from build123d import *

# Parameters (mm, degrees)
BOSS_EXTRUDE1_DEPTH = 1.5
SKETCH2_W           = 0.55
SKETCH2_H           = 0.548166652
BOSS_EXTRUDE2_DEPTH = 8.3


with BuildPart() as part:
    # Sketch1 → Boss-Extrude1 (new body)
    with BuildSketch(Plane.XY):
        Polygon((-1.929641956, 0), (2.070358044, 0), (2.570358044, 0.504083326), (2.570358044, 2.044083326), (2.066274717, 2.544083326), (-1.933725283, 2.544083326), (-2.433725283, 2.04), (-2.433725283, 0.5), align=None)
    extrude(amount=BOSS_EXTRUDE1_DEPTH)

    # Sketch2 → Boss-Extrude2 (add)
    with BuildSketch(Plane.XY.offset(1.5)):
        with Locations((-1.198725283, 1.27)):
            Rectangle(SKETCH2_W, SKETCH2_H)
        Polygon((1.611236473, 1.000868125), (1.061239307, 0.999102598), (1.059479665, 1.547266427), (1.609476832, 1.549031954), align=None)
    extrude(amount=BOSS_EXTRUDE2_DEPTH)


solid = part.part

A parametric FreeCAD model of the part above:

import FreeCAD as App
import Part
import Sketcher
Q = App.Units.Quantity


def add_polygon(sketch, points):
    """Adds a closed chain of lines whose ends are joined by coincident constraints."""
    first, n = sketch.GeometryCount, len(points)
    for a, b in zip(points, points[1:] + points[:1]):
        sketch.addGeometry(Part.LineSegment(App.Vector(*a, 0), App.Vector(*b, 0)), False)
    for i in range(n):
        sketch.addConstraint(Sketcher.Constraint("Coincident", first + i, 2, first + (i + 1) % n, 1))

doc = App.newDocument("Part")
body = doc.addObject("PartDesign::Body", "Body")

sketch1 = body.newObject("Sketcher::SketchObject", "Sketch")
sketch1.AttachmentSupport = (doc.getObject("XY_Plane"), [""])
sketch1.MapMode = "FlatFace"
add_polygon(sketch1, [(-1.9, 0), (2.1, 0), (2.6, 0.5), (2.6, 2), (2.1, 2.5), (-1.9, 2.5), (-2.4, 2), (-2.4, 0.5)])
sketch1.addConstraint(Sketcher.Constraint("Horizontal", 0))
sketch1.addConstraint(Sketcher.Constraint("Vertical", 2))
sketch1.addConstraint(Sketcher.Constraint("Horizontal", 4))
sketch1.addConstraint(Sketcher.Constraint("Vertical", 6))
sketch1.addConstraint(Sketcher.Constraint("PointOnObject", 0, 2, -1))
sketch1.addConstraint(Sketcher.Constraint("Perpendicular", 1, 3))
sketch1.addConstraint(Sketcher.Constraint("Perpendicular", 3, 5))
sketch1.addConstraint(Sketcher.Constraint("Perpendicular", 5, 7))
sketch1.addConstraint(Sketcher.Constraint("Equal", 0, 4))
sketch1.addConstraint(Sketcher.Constraint("Equal", 2, 6))
sketch1.addConstraint(Sketcher.Constraint("Equal", 1, 3))
sketch1.addConstraint(Sketcher.Constraint("DistanceX", 0, 1, 0, 2, Q("4 mm")))
sketch1.addConstraint(Sketcher.Constraint("DistanceY", 2, 1, 2, 2, Q("1.54 mm")))
sketch1.addConstraint(Sketcher.Constraint("DistanceY", -1, 1, 6, 2, Q("0.5 mm")))
sketch1.addConstraint(Sketcher.Constraint("Distance", 1, Q("0.71 mm")))
sketch1.addConstraint(Sketcher.Constraint("DistanceX", -1, 1, 0, 2, Q("2.070358 mm")))
pad1 = body.newObject("PartDesign::Pad", "Pad")
pad1.Profile = sketch1
pad1.Length = 1.5

sketch2 = body.newObject("Sketcher::SketchObject", "Sketch001")
sketch2.AttachmentSupport = (doc.getObject("XY_Plane"), [""])
sketch2.MapMode = "FlatFace"
sketch2.AttachmentOffset = App.Placement(App.Vector(0, 0, 1.5), App.Rotation())
add_polygon(sketch2, [(-1.5, 1.5), (-1.5, 1), (-0.9, 1), (-0.9, 1.5)])
add_polygon(sketch2, [(1.1, 1), (1.6, 1), (1.6, 1.5), (1.1, 1.5)])
sketch2.addConstraint(Sketcher.Constraint("Vertical", 0))
sketch2.addConstraint(Sketcher.Constraint("Horizontal", 1))
sketch2.addConstraint(Sketcher.Constraint("Vertical", 2))
sketch2.addConstraint(Sketcher.Constraint("Horizontal", 3))
sketch2.addConstraint(Sketcher.Constraint("Perpendicular", 4, 5))
sketch2.addConstraint(Sketcher.Constraint("Perpendicular", 5, 6))
sketch2.addConstraint(Sketcher.Constraint("Perpendicular", 6, 7))
sketch2.addConstraint(Sketcher.Constraint("DistanceX", 1, 1, 1, 2, Q("0.55 mm")))
sketch2.addConstraint(Sketcher.Constraint("Distance", 4, Q("0.55 mm")))
sketch2.addConstraint(Sketcher.Constraint("DistanceY", 4, 2, 6, 2, Q("0.546398 mm")))
sketch2.addConstraint(Sketcher.Constraint("DistanceY", 0, 2, 0, 1, Q("0.548167 mm")))
sketch2.addConstraint(Sketcher.Constraint("DistanceY", -1, 1, 4, 2, Q("1.000868 mm")))
sketch2.addConstraint(Sketcher.Constraint("DistanceY", -1, 1, 5, 2, Q("1.549032 mm")))
sketch2.addConstraint(Sketcher.Constraint("DistanceX", -1, 1, 6, 2, Q("1.05948 mm")))
sketch2.addConstraint(Sketcher.Constraint("DistanceX", 1, 2, 4, 2, Q("2.534962 mm")))
sketch2.addConstraint(Sketcher.Constraint("DistanceY", 1, 2, 4, 2, Q("0.004951 mm")))
pad2 = body.newObject("PartDesign::Pad", "Pad001")
pad2.Profile = sketch2
pad2.Length = 8.3

doc.recompute()
